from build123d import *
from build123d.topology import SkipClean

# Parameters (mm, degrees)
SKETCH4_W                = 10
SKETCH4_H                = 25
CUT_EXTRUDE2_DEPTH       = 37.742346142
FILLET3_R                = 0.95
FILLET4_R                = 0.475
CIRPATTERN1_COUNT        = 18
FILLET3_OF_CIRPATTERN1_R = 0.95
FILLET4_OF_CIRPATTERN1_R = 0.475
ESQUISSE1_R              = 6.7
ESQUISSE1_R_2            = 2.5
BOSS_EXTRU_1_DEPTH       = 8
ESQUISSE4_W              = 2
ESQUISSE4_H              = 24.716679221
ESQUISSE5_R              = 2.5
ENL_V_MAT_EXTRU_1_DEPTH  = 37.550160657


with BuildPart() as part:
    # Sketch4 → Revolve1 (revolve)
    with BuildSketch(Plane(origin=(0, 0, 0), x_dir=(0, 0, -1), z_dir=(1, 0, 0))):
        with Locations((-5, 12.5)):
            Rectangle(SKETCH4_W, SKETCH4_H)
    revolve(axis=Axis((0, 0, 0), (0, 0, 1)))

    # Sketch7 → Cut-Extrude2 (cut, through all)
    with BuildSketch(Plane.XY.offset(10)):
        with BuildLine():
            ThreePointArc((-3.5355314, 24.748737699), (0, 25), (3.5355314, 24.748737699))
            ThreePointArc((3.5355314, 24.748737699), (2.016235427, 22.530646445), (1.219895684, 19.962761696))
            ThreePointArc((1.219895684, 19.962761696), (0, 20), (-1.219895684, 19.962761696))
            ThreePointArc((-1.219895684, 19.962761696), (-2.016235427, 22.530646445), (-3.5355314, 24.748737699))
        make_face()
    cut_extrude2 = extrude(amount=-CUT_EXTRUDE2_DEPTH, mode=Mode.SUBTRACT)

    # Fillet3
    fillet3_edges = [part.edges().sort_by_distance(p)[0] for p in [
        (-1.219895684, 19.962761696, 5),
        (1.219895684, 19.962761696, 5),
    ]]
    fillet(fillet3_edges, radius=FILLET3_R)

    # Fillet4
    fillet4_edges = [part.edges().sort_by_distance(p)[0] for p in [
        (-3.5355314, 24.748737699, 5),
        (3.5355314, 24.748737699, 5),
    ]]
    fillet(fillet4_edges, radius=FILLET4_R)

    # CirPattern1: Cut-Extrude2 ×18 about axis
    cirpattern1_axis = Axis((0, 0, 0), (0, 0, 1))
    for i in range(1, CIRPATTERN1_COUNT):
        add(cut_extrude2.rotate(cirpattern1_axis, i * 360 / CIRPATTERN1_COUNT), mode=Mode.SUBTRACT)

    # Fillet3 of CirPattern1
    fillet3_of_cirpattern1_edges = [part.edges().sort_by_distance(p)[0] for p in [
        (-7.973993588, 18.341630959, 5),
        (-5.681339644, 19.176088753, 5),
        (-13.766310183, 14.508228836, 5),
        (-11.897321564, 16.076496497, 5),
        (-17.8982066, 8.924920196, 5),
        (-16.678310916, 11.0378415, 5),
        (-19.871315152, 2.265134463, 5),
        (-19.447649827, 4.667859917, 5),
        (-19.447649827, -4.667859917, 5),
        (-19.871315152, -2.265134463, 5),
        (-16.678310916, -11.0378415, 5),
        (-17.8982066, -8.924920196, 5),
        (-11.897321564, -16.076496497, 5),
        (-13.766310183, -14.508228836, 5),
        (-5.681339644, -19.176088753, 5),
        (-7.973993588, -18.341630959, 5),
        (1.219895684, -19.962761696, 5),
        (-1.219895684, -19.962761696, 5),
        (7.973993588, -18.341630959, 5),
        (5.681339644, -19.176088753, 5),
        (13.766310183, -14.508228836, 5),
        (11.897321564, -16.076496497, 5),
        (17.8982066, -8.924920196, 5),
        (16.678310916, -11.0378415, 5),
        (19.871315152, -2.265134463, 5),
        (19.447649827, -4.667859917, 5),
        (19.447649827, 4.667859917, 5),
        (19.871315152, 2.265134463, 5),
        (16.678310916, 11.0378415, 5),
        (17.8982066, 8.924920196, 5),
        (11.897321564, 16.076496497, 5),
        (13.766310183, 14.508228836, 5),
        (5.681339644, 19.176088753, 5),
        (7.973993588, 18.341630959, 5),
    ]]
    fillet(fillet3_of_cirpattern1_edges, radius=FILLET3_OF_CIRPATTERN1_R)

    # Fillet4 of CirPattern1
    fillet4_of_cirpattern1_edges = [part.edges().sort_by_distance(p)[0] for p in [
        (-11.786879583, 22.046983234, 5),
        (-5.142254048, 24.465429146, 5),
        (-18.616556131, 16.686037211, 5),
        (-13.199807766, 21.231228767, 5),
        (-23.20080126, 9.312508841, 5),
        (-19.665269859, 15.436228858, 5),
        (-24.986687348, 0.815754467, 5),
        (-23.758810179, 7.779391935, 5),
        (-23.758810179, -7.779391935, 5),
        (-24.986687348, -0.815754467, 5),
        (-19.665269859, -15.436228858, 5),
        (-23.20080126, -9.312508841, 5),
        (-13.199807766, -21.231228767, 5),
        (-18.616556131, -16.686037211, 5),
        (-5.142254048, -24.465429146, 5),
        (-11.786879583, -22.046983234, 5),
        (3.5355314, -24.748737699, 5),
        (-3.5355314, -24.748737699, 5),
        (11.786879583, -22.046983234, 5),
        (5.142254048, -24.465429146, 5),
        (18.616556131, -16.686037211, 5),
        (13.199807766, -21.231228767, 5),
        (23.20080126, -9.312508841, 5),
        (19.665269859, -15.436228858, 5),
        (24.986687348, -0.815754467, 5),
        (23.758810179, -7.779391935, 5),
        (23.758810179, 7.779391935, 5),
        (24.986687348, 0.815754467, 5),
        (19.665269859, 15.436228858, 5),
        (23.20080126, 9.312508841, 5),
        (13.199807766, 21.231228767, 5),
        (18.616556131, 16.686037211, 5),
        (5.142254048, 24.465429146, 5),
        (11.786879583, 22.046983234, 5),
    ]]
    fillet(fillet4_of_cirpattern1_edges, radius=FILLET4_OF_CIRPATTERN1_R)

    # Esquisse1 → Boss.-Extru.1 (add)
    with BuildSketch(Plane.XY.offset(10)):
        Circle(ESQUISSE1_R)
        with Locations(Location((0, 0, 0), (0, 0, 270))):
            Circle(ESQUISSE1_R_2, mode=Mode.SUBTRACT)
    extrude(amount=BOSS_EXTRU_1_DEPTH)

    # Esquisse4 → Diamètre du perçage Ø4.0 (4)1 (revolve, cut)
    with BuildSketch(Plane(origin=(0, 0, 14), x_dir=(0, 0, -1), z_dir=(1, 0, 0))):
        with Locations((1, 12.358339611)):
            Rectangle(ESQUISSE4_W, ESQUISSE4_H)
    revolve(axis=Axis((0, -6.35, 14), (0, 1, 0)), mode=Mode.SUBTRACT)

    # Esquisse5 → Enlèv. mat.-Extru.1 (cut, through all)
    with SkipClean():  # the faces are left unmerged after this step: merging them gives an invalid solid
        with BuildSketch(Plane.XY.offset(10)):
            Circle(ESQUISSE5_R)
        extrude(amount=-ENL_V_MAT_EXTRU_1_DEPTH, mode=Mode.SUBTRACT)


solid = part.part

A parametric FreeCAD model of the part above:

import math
import FreeCAD as App
import Part
import Sketcher

V = App.Vector
Q = App.Units.Quantity


def edges_at(feature, points):
    """Names of the edges that pass closest to the given points."""
    edges = feature.Shape.Edges
    near = lambda p: min(range(len(edges)), key=lambda i: edges[i].distToShape(Part.Vertex(*p))[0])
    return sorted({f"Edge{near(p) + 1}" for p in points})


def add_polygon(sketch, points):
    """Adds a closed chain of lines whose ends are joined by coincident constraints."""
    first, n = sketch.GeometryCount, len(points)
    for a, b in zip(points, points[1:] + points[:1]):
        sketch.addGeometry(Part.LineSegment(App.Vector(*a, 0), App.Vector(*b, 0)), False)
    for i in range(n):
        sketch.addConstraint(Sketcher.Constraint("Coincident", first + i, 2, first + (i + 1) % n, 1))

doc = App.newDocument("Part")
params = doc.addObject("Spreadsheet::Sheet", "Params")
for row, (alias, value) in enumerate([
    ("sketch1_width", "25 mm"),
    ("sketch1_height", "10 mm"),
    ("revolution_angle", "360 deg"),
    ("sketch2_radius", "25 mm"),
    ("sketch2_radius2", "9 mm"),
    ("sketch2_radius3", "20 mm"),
    ("fillet_radius", "0.95 mm"),
    ("fillet2_radius", "0.475 mm"),
    ("fillet3_radius", "0.95 mm"),
    ("fillet4_radius", "0.475 mm"),
    ("sketch3_diameter", "5 mm"),
    ("sketch3_diameter2", "13.4 mm"),
    ("pad1_length", "8 mm"),
    ("sketch4_height", "2 mm"),
    ("groove_angle", "360 deg"),
    ("sketch5_diameter", "5 mm"),
], start=1):
    params.set(f"A{row}", alias)
    params.set(f"B{row}", "=" + value)
    params.setAlias(f"B{row}", alias)

body = doc.addObject("PartDesign::Body", "Body")

# Sketch on YZ plane
sketch1 = body.newObject("Sketcher::SketchObject", "Sketch")
sketch1.AttachmentSupport = (doc.getObject("YZ_Plane"), [""])
sketch1.MapMode = "FlatFace"
add_polygon(sketch1, [(25, 10), (0, 10), (0, 0), (25, 0)])  # lines 0-3
sketch1.addConstraint([
    Sketcher.Constraint("Horizontal", 0),
    Sketcher.Constraint("Vertical", 1),
    Sketcher.Constraint("Horizontal", 2),
    Sketcher.Constraint("Vertical", 3),
    Sketcher.Constraint("Coincident", 1, 2, -1, 1),
    Sketcher.Constraint("DistanceX", 0, 2, 0, 1, Q("25 mm")),
    Sketcher.Constraint("DistanceY", 1, 2, 1, 1, Q("10 mm")),
])
sketch1.setExpression("Constraints[9]", "Params.sketch1_width")
sketch1.setExpression("Constraints[10]", "Params.sketch1_height")
revolution = body.newObject("PartDesign::Revolution", "Revolution")
revolution.Profile = sketch1
revolution.ReferenceAxis = (sketch1, ["V_Axis"])
revolution.setExpression("Angle", "Params.revolution_angle")

# Sketch on XY plane
sketch2 = body.newObject("Sketcher::SketchObject", "Sketch001")
sketch2.AttachmentSupport = (doc.getObject("XY_Plane"), [""])
sketch2.MapMode = "FlatFace"
sketch2.AttachmentOffset = App.Placement(V(0, 0, 10), App.Rotation())
sketch2.addGeometry([
    Part.ArcOfCircle(Part.Circle(V(0, 0, 0), V(0, 0, 1), 25), math.radians(81.87), math.radians(98.13)),
    Part.ArcOfCircle(Part.Circle(V(-10.1, 18.6, 0), V(0, 0, 1), 9), math.radians(9), math.radians(43)),
    Part.ArcOfCircle(Part.Circle(V(0, 0, 0), V(0, 0, 1), 20), math.radians(86.5), math.radians(93.5)),
    Part.ArcOfCircle(Part.Circle(V(10.1, 18.6, 0), V(0, 0, 1), 9), math.radians(137), math.radians(171)),
], False)
sketch2.addConstraint([
    Sketcher.Constraint("Coincident", 0, 2, 1, 2),
    Sketcher.Constraint("Coincident", 1, 1, 2, 2),
    Sketcher.Constraint("Coincident", 2, 1, 3, 2),
    Sketcher.Constraint("Coincident", 3, 1, 0, 1),
    Sketcher.Constraint("Coincident", 0, 3, -1, 1),
    Sketcher.Constraint("Coincident", 2, 3, -1, 1),
    Sketcher.Constraint("Equal", 1, 3),
    Sketcher.Constraint("Symmetric", 1, 3, 3, 3, -2),
    Sketcher.Constraint("Radius", 0, Q("25 mm")),
    Sketcher.Constraint("Radius", 1, Q("9 mm")),
    Sketcher.Constraint("Radius", 2, Q("20 mm")),
    Sketcher.Constraint("DistanceX", 0, 2, -1, 1, Q("3.535531 mm")),
    Sketcher.Constraint("DistanceY", -1, 1, 1, 1, Q("19.962762 mm")),
])
sketch2.setExpression("Constraints[8]", "Params.sketch2_radius")
sketch2.setExpression("Constraints[9]", "Params.sketch2_radius2")
sketch2.setExpression("Constraints[10]", "Params.sketch2_radius3")
pocket1 = body.newObject("PartDesign::Pocket", "Pocket")
pocket1.Profile = sketch2
pocket1.Type = "ThroughAll"
doc.recompute()

fillet = body.newObject("PartDesign::Fillet", "Fillet")
fillet.Base = (pocket1, edges_at(pocket1, [(-1.22, 19.963, 5), (1.22, 19.963, 5)]))
fillet.setExpression("Radius", "Params.fillet_radius")
doc.recompute()

fillet2 = body.newObject("PartDesign::Fillet", "Fillet001")
fillet2.Base = (fillet, edges_at(fillet, [(-3.536, 24.749, 5), (3.536, 24.749, 5)]))
fillet2.setExpression("Radius", "Params.fillet2_radius")
doc.recompute()

polarpattern = body.newObject("PartDesign::PolarPattern", "PolarPattern")
polarpattern.Originals = [pocket1]
polarpattern.Axis = (doc.getObject("Z_Axis"), [""])
polarpattern.Angle = 360
polarpattern.Occurrences = 18
body.Tip = polarpattern
doc.recompute()

fillet3 = body.newObject("PartDesign::Fillet", "Fillet002")
fillet3.Base = (polarpattern, edges_at(polarpattern, [
    (-7.974, 18.342, 5),
    (-5.681, 19.176, 5),
    (-13.766, 14.508, 5),
    (-11.897, 16.076, 5),
    (-17.898, 8.925, 5),
    (-16.678, 11.038, 5),
    (-19.871, 2.265, 5),
    (-19.448, 4.668, 5),
    (-19.448, -4.668, 5),
    (-19.871, -2.265, 5),
    (-16.678, -11.038, 5),
    (-17.898, -8.925, 5),
    (-11.897, -16.076, 5),
    (-13.766, -14.508, 5),
    (-5.681, -19.176, 5),
    (-7.974, -18.342, 5),
    (1.22, -19.963, 5),
    (-1.22, -19.963, 5),
    (7.974, -18.342, 5),
    (5.681, -19.176, 5),
    (13.766, -14.508, 5),
    (11.897, -16.076, 5),
    (17.898, -8.925, 5),
    (16.678, -11.038, 5),
    (19.871, -2.265, 5),
    (19.448, -4.668, 5),
    (19.448, 4.668, 5),
    (19.871, 2.265, 5),
    (16.678, 11.038, 5),
    (17.898, 8.925, 5),
    (11.897, 16.076, 5),
    (13.766, 14.508, 5),
    (5.681, 19.176, 5),
    (7.974, 18.342, 5),
]))
fillet3.setExpression("Radius", "Params.fillet3_radius")
doc.recompute()

fillet4 = body.newObject("PartDesign::Fillet", "Fillet003")
fillet4.Base = (fillet3, edges_at(fillet3, [
    (-11.787, 22.047, 5),
    (-5.142, 24.465, 5),
    (-18.617, 16.686, 5),
    (-13.2, 21.231, 5),
    (-23.201, 9.313, 5),
    (-19.665, 15.436, 5),
    (-24.987, 0.816, 5),
    (-23.759, 7.779, 5),
    (-23.759, -7.779, 5),
    (-24.987, -0.816, 5),
    (-19.665, -15.436, 5),
    (-23.201, -9.313, 5),
    (-13.2, -21.231, 5),
    (-18.617, -16.686, 5),
    (-5.142, -24.465, 5),
    (-11.787, -22.047, 5),
    (3.536, -24.749, 5),
    (-3.536, -24.749, 5),
    (11.787, -22.047, 5),
    (5.142, -24.465, 5),
    (18.617, -16.686, 5),
    (13.2, -21.231, 5),
    (23.201, -9.313, 5),
    (19.665, -15.436, 5),
    (24.987, -0.816, 5),
    (23.759, -7.779, 5),
    (23.759, 7.779, 5),
    (24.987, 0.816, 5),
    (19.665, 15.436, 5),
    (23.201, 9.313, 5),
    (13.2, 21.231, 5),
    (18.617, 16.686, 5),
    (5.142, 24.465, 5),
    (11.787, 22.047, 5),
]))
fillet4.setExpression("Radius", "Params.fillet4_radius")

# Sketch on XY plane
sketch3 = body.newObject("Sketcher::SketchObject", "Sketch002")
sketch3.AttachmentSupport = (doc.getObject("XY_Plane"), [""])
sketch3.MapMode = "FlatFace"
sketch3.AttachmentOffset = App.Placement(V(0, 0, 10), App.Rotation())
sketch3.addGeometry([
    Part.Circle(V(0, 0, 0), V(0, 0, 1), 6.7),
    Part.Circle(V(0, 0, 0), V(0, 0, 1), 2.5),
], False)
sketch3.addConstraint([
    Sketcher.Constraint("Coincident", 0, 3, -1, 1),
    Sketcher.Constraint("Coincident", 1, 3, -1, 1),
    Sketcher.Constraint("Diameter", 1, Q("5 mm")),
    Sketcher.Constraint("Diameter", 0, Q("13.4 mm")),
])
sketch3.setExpression("Constraints[2]", "Params.sketch3_diameter")
sketch3.setExpression("Constraints[3]", "Params.sketch3_diameter2")
pad1 = body.newObject("PartDesign::Pad", "Pad")
pad1.Profile = sketch3
pad1.setExpression("Length", "Params.pad1_length")

# Sketch on YZ plane
sketch4 = body.newObject("Sketcher::SketchObject", "Sketch003")
sketch4.AttachmentSupport = (doc.getObject("YZ_Plane"), [""])
sketch4.MapMode = "FlatFace"
add_polygon(sketch4, [(24.7, 14), (0, 14), (0, 12), (24.7, 12)])  # lines 0-3
sketch4.addGeometry(Part.LineSegment(V(0, 14, 0), V(24.7, 14, 0)), True)  # axis
sketch4.addConstraint([
    Sketcher.Constraint("Horizontal", 0),
    Sketcher.Constraint("Vertical", 1),
    Sketcher.Constraint("Horizontal", 2),
    Sketcher.Constraint("Vertical", 3),
    Sketcher.Constraint("Horizontal", 4),
    Sketcher.Constraint("Coincident", 4, 1, 0, 2),
    Sketcher.Constraint("PointOnObject", 0, 2, -2),
    Sketcher.Constraint("Vertical", 2, 2, 4, 2),
    Sketcher.Constraint("DistanceY", 1, 2, 1, 1, Q("2 mm")),
    Sketcher.Constraint("DistanceY", -1, 1, 0, 2, Q("14 mm")),
    Sketcher.Constraint("DistanceX", 0, 2, 0, 1, Q("24.716679 mm")),
])
sketch4.setExpression("Constraints[12]", "Params.sketch4_height")
groove = body.newObject("PartDesign::Groove", "Groove")
groove.Profile = sketch4
groove.ReferenceAxis = (sketch4, ["Axis0"])
groove.setExpression("Angle", "Params.groove_angle")

# Sketch on XY plane
sketch5 = body.newObject("Sketcher::SketchObject", "Sketch004")
sketch5.AttachmentSupport = (doc.getObject("XY_Plane"), [""])
sketch5.MapMode = "FlatFace"
sketch5.AttachmentOffset = App.Placement(V(0, 0, 10), App.Rotation())
sketch5.addGeometry(Part.Circle(V(0, 0, 0), V(0, 0, 1), 2.5), False)
sketch5.addConstraint([
    Sketcher.Constraint("Coincident", 0, 3, -1, 1),
    Sketcher.Constraint("Diameter", 0, Q("5 mm")),
])
sketch5.setExpression("Constraints[1]", "Params.sketch5_diameter")
pocket2 = body.newObject("PartDesign::Pocket", "Pocket001")
pocket2.Profile = sketch5
pocket2.Type = "ThroughAll"

doc.recompute()
